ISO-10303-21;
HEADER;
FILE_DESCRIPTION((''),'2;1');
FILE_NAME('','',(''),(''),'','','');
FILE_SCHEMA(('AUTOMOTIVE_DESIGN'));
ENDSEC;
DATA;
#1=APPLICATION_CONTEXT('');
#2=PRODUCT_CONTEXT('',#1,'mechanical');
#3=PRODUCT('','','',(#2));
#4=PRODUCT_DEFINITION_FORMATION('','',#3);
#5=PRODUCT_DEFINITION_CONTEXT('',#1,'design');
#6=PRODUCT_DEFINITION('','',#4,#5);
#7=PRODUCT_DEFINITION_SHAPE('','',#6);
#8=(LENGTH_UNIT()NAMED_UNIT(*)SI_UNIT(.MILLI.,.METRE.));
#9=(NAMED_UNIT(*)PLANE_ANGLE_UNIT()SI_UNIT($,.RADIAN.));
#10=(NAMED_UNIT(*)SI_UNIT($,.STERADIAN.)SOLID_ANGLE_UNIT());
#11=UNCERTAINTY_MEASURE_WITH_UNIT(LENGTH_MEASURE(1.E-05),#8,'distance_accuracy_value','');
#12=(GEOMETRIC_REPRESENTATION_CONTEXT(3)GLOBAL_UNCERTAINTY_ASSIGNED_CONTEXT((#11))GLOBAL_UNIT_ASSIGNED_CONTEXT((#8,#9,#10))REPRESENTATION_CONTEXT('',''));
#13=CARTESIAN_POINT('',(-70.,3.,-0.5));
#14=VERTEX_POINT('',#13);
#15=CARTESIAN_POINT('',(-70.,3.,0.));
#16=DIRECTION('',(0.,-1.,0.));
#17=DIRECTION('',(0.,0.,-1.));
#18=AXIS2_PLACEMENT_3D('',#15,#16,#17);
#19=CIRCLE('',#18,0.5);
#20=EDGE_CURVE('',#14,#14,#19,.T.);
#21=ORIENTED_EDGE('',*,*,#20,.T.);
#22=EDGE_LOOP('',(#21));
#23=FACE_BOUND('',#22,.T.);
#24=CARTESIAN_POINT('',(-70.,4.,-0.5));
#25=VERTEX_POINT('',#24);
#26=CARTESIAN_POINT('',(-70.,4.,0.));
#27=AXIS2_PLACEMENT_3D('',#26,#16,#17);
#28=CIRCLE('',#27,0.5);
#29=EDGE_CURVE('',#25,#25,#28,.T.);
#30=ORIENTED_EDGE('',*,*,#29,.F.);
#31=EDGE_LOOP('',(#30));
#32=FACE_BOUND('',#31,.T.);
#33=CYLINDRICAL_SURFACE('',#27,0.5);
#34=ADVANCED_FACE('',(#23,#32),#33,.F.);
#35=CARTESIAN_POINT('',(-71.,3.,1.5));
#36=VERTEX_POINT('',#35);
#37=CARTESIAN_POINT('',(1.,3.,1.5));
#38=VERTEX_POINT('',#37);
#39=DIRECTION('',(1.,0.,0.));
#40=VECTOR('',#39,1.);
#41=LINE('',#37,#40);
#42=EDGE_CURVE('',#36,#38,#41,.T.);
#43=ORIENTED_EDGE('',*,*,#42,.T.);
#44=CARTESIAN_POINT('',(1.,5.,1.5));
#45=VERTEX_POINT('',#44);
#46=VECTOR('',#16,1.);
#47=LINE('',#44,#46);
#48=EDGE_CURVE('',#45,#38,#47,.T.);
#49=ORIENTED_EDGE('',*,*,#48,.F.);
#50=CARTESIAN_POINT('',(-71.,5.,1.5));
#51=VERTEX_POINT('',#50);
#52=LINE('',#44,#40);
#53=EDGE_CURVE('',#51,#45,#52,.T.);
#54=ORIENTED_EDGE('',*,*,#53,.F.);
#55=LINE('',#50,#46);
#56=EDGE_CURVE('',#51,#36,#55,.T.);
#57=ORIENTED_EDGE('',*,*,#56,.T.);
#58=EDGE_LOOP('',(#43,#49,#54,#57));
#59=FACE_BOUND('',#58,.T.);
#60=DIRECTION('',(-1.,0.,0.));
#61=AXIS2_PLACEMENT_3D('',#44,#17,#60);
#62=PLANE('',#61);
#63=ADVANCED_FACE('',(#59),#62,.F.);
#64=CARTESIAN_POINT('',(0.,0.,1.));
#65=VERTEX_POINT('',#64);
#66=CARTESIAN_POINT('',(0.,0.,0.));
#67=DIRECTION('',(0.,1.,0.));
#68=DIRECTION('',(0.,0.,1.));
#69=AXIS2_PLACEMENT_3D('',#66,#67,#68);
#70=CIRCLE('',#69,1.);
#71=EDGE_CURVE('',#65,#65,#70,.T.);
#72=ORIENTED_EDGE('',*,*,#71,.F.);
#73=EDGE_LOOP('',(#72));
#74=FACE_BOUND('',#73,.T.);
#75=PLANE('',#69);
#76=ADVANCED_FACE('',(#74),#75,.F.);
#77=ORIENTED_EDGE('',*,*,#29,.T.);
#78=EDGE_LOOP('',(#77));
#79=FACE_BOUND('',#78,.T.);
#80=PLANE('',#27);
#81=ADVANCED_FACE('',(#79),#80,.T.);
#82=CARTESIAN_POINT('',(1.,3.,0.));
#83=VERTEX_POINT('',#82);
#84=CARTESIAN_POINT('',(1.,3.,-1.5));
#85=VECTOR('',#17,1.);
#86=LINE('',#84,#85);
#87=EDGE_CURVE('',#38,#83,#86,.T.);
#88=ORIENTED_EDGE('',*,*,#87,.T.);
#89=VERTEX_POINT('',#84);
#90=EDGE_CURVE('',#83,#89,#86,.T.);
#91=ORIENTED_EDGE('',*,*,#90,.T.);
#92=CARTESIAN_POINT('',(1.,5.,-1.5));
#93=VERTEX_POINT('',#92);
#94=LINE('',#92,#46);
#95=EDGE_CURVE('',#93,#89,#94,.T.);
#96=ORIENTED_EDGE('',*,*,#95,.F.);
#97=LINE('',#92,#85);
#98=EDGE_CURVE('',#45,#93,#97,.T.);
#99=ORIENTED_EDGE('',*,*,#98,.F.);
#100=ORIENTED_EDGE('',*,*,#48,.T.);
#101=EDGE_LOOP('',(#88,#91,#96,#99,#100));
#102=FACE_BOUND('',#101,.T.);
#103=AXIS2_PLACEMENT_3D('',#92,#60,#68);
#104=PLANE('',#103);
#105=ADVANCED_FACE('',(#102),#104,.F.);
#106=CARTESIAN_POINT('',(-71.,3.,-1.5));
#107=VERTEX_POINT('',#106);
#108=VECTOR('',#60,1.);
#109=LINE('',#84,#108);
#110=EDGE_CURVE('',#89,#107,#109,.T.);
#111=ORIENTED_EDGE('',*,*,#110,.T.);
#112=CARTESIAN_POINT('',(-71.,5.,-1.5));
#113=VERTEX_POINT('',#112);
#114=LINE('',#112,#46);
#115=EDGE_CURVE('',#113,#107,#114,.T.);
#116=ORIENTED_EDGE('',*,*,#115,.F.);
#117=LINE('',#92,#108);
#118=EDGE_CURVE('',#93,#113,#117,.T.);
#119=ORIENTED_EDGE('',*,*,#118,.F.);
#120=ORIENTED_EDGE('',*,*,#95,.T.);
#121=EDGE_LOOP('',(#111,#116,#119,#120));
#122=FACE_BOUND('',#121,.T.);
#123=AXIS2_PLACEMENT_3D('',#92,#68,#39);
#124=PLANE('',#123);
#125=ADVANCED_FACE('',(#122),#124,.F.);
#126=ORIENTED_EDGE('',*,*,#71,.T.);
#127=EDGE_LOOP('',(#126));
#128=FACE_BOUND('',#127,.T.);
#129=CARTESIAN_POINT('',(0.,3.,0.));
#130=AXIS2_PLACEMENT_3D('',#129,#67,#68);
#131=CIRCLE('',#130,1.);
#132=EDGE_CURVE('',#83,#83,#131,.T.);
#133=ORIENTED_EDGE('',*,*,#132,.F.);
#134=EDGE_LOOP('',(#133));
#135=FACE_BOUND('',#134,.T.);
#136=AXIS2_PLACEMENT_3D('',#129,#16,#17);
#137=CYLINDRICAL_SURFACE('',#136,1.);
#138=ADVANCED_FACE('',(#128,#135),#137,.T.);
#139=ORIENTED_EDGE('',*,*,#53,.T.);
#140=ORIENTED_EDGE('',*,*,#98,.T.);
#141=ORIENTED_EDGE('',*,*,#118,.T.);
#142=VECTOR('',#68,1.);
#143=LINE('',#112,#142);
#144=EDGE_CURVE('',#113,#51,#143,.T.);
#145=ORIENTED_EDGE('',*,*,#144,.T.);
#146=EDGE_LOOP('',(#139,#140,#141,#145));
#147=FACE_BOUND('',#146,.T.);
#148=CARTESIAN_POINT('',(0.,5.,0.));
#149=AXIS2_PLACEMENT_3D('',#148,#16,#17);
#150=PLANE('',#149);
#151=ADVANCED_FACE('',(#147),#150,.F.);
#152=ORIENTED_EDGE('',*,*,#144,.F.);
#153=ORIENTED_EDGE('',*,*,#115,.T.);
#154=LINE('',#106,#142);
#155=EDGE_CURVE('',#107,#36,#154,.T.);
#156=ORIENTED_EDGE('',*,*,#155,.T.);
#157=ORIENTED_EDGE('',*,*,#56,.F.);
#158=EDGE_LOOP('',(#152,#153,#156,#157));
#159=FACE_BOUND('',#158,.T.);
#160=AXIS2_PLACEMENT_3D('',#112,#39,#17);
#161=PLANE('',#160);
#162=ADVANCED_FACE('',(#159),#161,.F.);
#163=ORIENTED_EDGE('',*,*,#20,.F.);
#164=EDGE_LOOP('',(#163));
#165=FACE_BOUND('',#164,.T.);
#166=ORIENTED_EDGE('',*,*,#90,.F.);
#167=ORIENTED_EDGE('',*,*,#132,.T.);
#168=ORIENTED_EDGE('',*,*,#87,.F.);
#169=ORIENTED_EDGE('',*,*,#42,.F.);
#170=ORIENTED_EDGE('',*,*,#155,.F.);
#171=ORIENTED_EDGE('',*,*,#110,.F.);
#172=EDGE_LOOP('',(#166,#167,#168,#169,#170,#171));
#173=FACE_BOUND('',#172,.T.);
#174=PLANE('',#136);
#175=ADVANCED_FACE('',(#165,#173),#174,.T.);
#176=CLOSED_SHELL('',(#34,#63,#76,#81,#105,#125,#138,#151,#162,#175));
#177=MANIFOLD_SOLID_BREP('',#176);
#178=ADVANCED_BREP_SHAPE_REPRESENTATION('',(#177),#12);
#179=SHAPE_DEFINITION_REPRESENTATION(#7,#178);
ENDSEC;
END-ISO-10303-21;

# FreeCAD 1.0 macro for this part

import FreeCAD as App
import Part
import Sketcher
Q = App.Units.Quantity


def add_polygon(sketch, points):
    """Adds a closed chain of lines whose ends are joined by coincident constraints."""
    first, n = sketch.GeometryCount, len(points)
    for a, b in zip(points, points[1:] + points[:1]):
        sketch.addGeometry(Part.LineSegment(App.Vector(*a, 0), App.Vector(*b, 0)), False)
    for i in range(n):
        sketch.addConstraint(Sketcher.Constraint("Coincident", first + i, 2, first + (i + 1) % n, 1))

doc = App.newDocument("Part")
body = doc.addObject("PartDesign::Body", "Body")

sketch1 = doc.addObject("Sketcher::SketchObject", "Sketch")
body.addObject(sketch1)
sketch1.AttachmentSupport = (doc.XZ_Plane, [""])
sketch1.MapMode = "FlatFace"
sketch1.addGeometry(Part.Circle(App.Vector(0, 0, 0), App.Vector(0, 0, 1), 1), False)
sketch1.addConstraint([
    Sketcher.Constraint("Coincident", 0, 3, -1, 1),
    Sketcher.Constraint("Diameter", 0, Q("2 mm")),
])
pad1 = doc.addObject("PartDesign::Pad", "Pad")
body.addObject(pad1)
pad1.Profile = sketch1
pad1.Length = 3
pad1.Reversed = True

sketch2 = doc.addObject("Sketcher::SketchObject", "Sketch001")
body.addObject(sketch2)
sketch2.AttachmentSupport = (doc.XZ_Plane, [""])
sketch2.MapMode = "FlatFace"
sketch2.AttachmentOffset = App.Placement(App.Vector(0, 0, -3), App.Rotation())
add_polygon(sketch2, [(-71, -1.5), (-71, 1.5), (1, 1.5), (1, -1.5)])
sketch2.addConstraint([
    Sketcher.Constraint("Vertical", 0),
    Sketcher.Constraint("Horizontal", 1),
    Sketcher.Constraint("Vertical", 2),
    Sketcher.Constraint("Horizontal", 3),
    Sketcher.Constraint("DistanceX", 1, 1, 1, 2, Q("72 mm")),
    Sketcher.Constraint("DistanceY", 0, 1, 0, 2, Q("3 mm")),
    Sketcher.Constraint("DistanceX", 0, 2, -1, 1, Q("71 mm")),
    Sketcher.Constraint("DistanceY", -1, 1, 0, 2, Q("1.5 mm")),
])
pad2 = doc.addObject("PartDesign::Pad", "Pad001")
body.addObject(pad2)
pad2.Profile = sketch2
pad2.Length = 2
pad2.Reversed = True

sketch3 = doc.addObject("Sketcher::SketchObject", "Sketch002")
body.addObject(sketch3)
sketch3.AttachmentSupport = (doc.XZ_Plane, [""])
sketch3.MapMode = "FlatFace"
sketch3.AttachmentOffset = App.Placement(App.Vector(0, 0, -3), App.Rotation())
sketch3.addGeometry(Part.Circle(App.Vector(-70, 0, 0), App.Vector(0, 0, 1), 0.5), False)
sketch3.addConstraint([
    Sketcher.Constraint("PointOnObject", 0, 3, -1),
    Sketcher.Constraint("Diameter", 0, Q("1 mm")),
    Sketcher.Constraint("DistanceX", 0, 3, -1, 1, Q("70 mm")),
])
pocket1 = doc.addObject("PartDesign::Pocket", "Pocket")
body.addObject(pocket1)
pocket1.Profile = sketch3
pocket1.Length = 1

doc.recompute()
